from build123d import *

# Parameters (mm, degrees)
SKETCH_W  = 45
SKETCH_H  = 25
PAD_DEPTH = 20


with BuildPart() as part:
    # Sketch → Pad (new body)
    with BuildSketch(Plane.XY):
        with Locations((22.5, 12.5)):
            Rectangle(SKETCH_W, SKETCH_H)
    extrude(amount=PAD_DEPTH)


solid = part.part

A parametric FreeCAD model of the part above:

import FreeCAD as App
import Part
import Sketcher
from FreeCAD import Vector
Q = App.Units.Quantity

doc = App.newDocument("Part")
body = doc.addObject("PartDesign::Body", "Body")

sketch1 = body.newObject("Sketcher::SketchObject", "Sketch")
sketch1.AttachmentSupport = (doc.getObject("XY_Plane"), [""])
sketch1.MapMode = "FlatFace"
sketch1.addGeometry(Part.LineSegment(Vector(0, 25, 0), Vector(0, 0, 0)), False)
sketch1.addGeometry(Part.LineSegment(Vector(0, 0, 0), Vector(45, 0, 0)), False)
sketch1.addGeometry(Part.LineSegment(Vector(45, 0, 0), Vector(45, 25, 0)), False)
sketch1.addGeometry(Part.LineSegment(Vector(45, 25, 0), Vector(0, 25, 0)), False)
sketch1.addConstraint(Sketcher.Constraint("Coincident", 0, 2, 1, 1))
sketch1.addConstraint(Sketcher.Constraint("Coincident", 1, 2, 2, 1))
sketch1.addConstraint(Sketcher.Constraint("Coincident", 2, 2, 3, 1))
sketch1.addConstraint(Sketcher.Constraint("Coincident", 3, 2, 0, 1))
sketch1.addConstraint(Sketcher.Constraint("Vertical", 0))
sketch1.addConstraint(Sketcher.Constraint("Horizontal", 1))
sketch1.addConstraint(Sketcher.Constraint("Vertical", 2))
sketch1.addConstraint(Sketcher.Constraint("Horizontal", 3))
sketch1.addConstraint(Sketcher.Constraint("Coincident", 0, 2, -1, 1))
sketch1.addConstraint(Sketcher.Constraint("DistanceX", 1, 1, 1, 2, Q("45 mm")))
sketch1.addConstraint(Sketcher.Constraint("DistanceY", 0, 2, 0, 1, Q("25 mm")))
pad1 = body.newObject("PartDesign::Pad", "Pad")
pad1.Profile = sketch1
pad1.Length = 20

doc.recompute()
